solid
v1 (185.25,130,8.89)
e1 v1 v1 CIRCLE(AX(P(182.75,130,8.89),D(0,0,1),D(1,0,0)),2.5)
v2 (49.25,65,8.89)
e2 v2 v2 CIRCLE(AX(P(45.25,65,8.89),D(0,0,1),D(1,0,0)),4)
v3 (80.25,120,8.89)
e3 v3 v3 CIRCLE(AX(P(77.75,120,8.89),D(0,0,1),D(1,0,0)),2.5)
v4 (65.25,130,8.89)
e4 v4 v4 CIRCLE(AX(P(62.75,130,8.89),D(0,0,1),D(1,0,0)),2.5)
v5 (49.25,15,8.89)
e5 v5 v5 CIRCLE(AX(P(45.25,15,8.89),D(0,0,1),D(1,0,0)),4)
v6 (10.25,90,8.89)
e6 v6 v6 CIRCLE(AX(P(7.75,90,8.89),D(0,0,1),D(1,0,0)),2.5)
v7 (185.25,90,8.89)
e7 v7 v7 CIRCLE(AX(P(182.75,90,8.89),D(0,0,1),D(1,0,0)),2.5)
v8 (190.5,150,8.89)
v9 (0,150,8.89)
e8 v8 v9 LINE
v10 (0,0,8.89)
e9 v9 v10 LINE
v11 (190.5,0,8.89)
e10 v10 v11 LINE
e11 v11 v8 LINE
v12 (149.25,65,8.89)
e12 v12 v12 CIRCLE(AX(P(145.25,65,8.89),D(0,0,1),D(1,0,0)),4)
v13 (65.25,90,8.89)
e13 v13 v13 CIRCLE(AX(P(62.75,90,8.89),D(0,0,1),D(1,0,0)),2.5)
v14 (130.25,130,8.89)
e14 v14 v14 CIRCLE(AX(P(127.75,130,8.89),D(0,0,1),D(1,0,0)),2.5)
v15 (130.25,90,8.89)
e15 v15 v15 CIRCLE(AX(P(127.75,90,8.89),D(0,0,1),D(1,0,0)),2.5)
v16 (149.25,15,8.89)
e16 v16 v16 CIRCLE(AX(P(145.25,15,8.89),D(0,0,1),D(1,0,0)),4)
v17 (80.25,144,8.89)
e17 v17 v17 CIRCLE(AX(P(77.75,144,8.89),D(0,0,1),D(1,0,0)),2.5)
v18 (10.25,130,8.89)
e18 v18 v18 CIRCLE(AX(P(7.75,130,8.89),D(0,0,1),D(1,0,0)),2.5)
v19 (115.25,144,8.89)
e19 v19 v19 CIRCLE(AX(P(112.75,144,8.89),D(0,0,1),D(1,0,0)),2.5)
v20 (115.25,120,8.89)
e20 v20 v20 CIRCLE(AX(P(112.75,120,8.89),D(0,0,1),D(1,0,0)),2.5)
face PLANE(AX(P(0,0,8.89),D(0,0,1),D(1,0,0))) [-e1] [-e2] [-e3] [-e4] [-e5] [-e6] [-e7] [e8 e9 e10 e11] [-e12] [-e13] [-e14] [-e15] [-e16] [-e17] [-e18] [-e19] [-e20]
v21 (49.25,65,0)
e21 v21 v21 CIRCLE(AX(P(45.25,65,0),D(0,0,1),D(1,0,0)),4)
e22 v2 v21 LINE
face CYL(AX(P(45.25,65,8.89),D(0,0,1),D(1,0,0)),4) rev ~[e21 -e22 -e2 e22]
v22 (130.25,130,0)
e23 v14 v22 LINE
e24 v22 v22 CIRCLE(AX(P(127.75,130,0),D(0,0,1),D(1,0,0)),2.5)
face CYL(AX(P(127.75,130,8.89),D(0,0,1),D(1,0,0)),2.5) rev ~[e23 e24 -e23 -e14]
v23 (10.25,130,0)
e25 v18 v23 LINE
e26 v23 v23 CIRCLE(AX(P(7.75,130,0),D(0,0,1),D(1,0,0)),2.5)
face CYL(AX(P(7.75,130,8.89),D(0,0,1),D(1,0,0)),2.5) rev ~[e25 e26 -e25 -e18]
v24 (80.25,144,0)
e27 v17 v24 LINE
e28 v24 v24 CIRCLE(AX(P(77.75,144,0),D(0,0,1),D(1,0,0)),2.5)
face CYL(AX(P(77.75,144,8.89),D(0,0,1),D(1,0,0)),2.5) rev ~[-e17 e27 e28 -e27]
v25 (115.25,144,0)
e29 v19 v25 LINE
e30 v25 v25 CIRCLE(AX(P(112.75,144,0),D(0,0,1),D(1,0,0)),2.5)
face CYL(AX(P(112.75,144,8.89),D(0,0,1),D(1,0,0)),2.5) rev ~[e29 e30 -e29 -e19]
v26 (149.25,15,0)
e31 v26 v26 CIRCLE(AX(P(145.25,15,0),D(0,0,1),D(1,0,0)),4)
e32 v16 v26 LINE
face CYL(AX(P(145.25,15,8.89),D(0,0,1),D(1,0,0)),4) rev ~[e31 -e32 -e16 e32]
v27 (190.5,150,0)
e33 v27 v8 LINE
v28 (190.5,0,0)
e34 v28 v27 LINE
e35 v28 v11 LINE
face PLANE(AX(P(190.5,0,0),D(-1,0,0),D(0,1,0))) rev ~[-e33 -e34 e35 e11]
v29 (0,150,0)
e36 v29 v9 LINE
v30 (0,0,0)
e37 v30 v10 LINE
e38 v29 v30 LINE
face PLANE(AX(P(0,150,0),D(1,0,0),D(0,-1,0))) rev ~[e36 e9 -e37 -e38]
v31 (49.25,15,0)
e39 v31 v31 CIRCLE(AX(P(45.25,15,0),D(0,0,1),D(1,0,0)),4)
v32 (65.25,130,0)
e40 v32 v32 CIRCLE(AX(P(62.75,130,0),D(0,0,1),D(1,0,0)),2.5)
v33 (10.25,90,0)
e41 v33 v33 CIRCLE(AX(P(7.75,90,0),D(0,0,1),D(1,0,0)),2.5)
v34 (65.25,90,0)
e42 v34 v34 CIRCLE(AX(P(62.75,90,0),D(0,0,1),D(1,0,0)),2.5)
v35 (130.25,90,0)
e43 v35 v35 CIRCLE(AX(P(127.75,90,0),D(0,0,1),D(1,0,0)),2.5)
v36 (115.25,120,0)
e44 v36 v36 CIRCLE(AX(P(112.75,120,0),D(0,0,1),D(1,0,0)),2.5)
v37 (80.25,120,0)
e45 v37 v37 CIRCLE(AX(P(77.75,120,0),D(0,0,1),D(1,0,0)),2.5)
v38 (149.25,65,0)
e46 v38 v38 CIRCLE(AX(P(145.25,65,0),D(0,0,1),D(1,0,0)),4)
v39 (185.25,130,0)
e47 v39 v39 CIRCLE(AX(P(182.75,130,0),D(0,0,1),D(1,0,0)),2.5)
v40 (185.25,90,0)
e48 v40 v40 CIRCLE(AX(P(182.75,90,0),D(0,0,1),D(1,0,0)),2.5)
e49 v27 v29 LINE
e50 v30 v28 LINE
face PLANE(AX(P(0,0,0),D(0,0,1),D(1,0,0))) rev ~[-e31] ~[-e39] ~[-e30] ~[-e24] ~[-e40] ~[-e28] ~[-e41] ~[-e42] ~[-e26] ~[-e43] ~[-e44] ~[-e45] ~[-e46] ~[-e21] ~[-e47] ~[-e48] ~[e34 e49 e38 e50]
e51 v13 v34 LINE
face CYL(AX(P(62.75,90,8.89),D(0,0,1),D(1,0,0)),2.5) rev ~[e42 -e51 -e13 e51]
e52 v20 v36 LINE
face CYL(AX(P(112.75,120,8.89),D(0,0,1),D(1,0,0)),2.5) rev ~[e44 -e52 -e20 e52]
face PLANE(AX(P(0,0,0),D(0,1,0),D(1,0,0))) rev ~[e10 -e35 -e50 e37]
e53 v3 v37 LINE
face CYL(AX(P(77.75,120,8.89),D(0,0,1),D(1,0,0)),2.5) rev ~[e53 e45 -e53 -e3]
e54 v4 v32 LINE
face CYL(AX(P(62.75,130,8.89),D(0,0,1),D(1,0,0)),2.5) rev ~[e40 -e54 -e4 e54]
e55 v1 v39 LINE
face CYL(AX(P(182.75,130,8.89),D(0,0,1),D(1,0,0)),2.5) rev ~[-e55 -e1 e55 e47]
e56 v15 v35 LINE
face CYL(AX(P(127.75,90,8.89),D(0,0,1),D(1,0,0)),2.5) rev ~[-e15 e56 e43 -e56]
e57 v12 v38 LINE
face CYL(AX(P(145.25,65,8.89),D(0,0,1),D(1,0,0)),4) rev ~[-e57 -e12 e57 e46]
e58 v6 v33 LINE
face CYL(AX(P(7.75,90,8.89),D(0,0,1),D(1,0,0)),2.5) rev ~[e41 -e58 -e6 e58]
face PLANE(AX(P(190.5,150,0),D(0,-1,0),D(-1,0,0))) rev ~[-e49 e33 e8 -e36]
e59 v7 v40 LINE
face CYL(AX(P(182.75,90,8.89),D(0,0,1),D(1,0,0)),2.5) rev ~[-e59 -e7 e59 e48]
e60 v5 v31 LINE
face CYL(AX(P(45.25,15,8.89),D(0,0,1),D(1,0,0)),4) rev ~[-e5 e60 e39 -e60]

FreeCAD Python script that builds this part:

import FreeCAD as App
import Part
import Sketcher
Q = App.Units.Quantity


def add_polygon(sketch, points):
    """Adds a closed chain of lines whose ends are joined by coincident constraints."""
    first, n = sketch.GeometryCount, len(points)
    for a, b in zip(points, points[1:] + points[:1]):
        sketch.addGeometry(Part.LineSegment(App.Vector(*a, 0), App.Vector(*b, 0)), False)
    for i in range(n):
        sketch.addConstraint(Sketcher.Constraint("Coincident", first + i, 2, first + (i + 1) % n, 1))

doc = App.newDocument("Part")
body = doc.addObject("PartDesign::Body", "Body")

# Sketch on XY plane
sketch1 = body.newObject("Sketcher::SketchObject", "Sketch")
sketch1.AttachmentSupport = (doc.getObject("XY_Plane"), [""])
sketch1.MapMode = "FlatFace"
add_polygon(sketch1, [(0, 150), (0, 0), (190, 0), (190, 150)])  # lines 0-3
sketch1.addConstraint([
    Sketcher.Constraint("Vertical", 0),
    Sketcher.Constraint("Horizontal", 1),
    Sketcher.Constraint("Vertical", 2),
    Sketcher.Constraint("Horizontal", 3),
    Sketcher.Constraint("Coincident", 0, 2, -1, 1),
    Sketcher.Constraint("DistanceY", 0, 2, 0, 1, Q("150 mm")),
    Sketcher.Constraint("DistanceX", 1, 1, 1, 2, Q("190.5 mm")),
])
pad1 = body.newObject("PartDesign::Pad", "Pad")
pad1.Profile = sketch1
pad1.Length = 8.89

# Sketch on XY plane
sketch2 = body.newObject("Sketcher::SketchObject", "Sketch001")
sketch2.AttachmentSupport = (doc.getObject("XY_Plane"), [""])
sketch2.MapMode = "FlatFace"
sketch2.AttachmentOffset = App.Placement(App.Vector(0, 0, 8.89), App.Rotation())
sketch2.addGeometry([
    Part.Circle(App.Vector(45.2, 65, 0), App.Vector(0, 0, 1), 4),
    Part.Circle(App.Vector(145.2, 65, 0), App.Vector(0, 0, 1), 4),
    Part.Circle(App.Vector(45.2, 15, 0), App.Vector(0, 0, 1), 4),
    Part.Circle(App.Vector(145.2, 15, 0), App.Vector(0, 0, 1), 4),
], False)
sketch2.addConstraint([
    Sketcher.Constraint("Equal", 0, 1),
    Sketcher.Constraint("Equal", 1, 2),
    Sketcher.Constraint("Equal", 2, 3),
    Sketcher.Constraint("Horizontal", 0, 3, 1, 3),
    Sketcher.Constraint("Horizontal", 2, 3, 3, 3),
    Sketcher.Constraint("Vertical", 0, 3, 2, 3),
    Sketcher.Constraint("Vertical", 1, 3, 3, 3),
    Sketcher.Constraint("Diameter", 0, Q("8 mm")),
    Sketcher.Constraint("DistanceY", -1, 1, 2, 3, Q("15 mm")),
    Sketcher.Constraint("DistanceX", 0, 3, 1, 3, Q("100 mm")),
    Sketcher.Constraint("DistanceY", 2, 3, 0, 3, Q("50 mm")),
    Sketcher.Constraint("DistanceX", -1, 1, 0, 3, Q("45.25 mm")),
])
pocket1 = body.newObject("PartDesign::Pocket", "Pocket")
pocket1.Profile = sketch2
pocket1.Length = 8.89

# Sketch on XY plane
sketch3 = body.newObject("Sketcher::SketchObject", "Sketch002")
sketch3.AttachmentSupport = (doc.getObject("XY_Plane"), [""])
sketch3.MapMode = "FlatFace"
sketch3.AttachmentOffset = App.Placement(App.Vector(0, 0, 8.89), App.Rotation())
sketch3.addGeometry([
    Part.Circle(App.Vector(7.8, 130, 0), App.Vector(0, 0, 1), 2.5),  # 0
    Part.Circle(App.Vector(62.8, 130, 0), App.Vector(0, 0, 1), 2.5),  # 1
    Part.Circle(App.Vector(7.8, 90, 0), App.Vector(0, 0, 1), 2.5),  # 2
    Part.Circle(App.Vector(62.8, 90, 0), App.Vector(0, 0, 1), 2.5),  # 3
    Part.Circle(App.Vector(182.8, 130, 0), App.Vector(0, 0, 1), 2.5),  # 4
    Part.Circle(App.Vector(127.8, 130, 0), App.Vector(0, 0, 1), 2.5),  # 5
    Part.Circle(App.Vector(182.8, 90, 0), App.Vector(0, 0, 1), 2.5),  # 6
    Part.Circle(App.Vector(127.8, 90, 0), App.Vector(0, 0, 1), 2.5),  # 7
], False)
sketch3.addConstraint([
    Sketcher.Constraint("Equal", 0, 1),
    Sketcher.Constraint("Equal", 1, 2),
    Sketcher.Constraint("Equal", 2, 3),
    Sketcher.Constraint("Equal", 3, 4),
    Sketcher.Constraint("Equal", 4, 5),
    Sketcher.Constraint("Equal", 5, 6),
    Sketcher.Constraint("Equal", 6, 7),
    Sketcher.Constraint("Horizontal", 0, 3, 1, 3),
    Sketcher.Constraint("Horizontal", 2, 3, 3, 3),
    Sketcher.Constraint("Horizontal", 1, 3, 4, 3),
    Sketcher.Constraint("Horizontal", 4, 3, 5, 3),
    Sketcher.Constraint("Horizontal", 3, 3, 6, 3),
    Sketcher.Constraint("Horizontal", 6, 3, 7, 3),
    Sketcher.Constraint("Vertical", 0, 3, 2, 3),
    Sketcher.Constraint("Vertical", 1, 3, 3, 3),
    Sketcher.Constraint("Vertical", 4, 3, 6, 3),
    Sketcher.Constraint("Vertical", 5, 3, 7, 3),
    Sketcher.Constraint("Diameter", 0, Q("5 mm")),
    Sketcher.Constraint("DistanceX", 0, 3, 1, 3, Q("55 mm")),
    Sketcher.Constraint("DistanceY", 2, 3, 0, 3, Q("40 mm")),
    Sketcher.Constraint("DistanceX", 5, 3, 4, 3, Q("55 mm")),
    Sketcher.Constraint("DistanceY", -1, 1, 0, 3, Q("130 mm")),
    Sketcher.Constraint("DistanceX", 1, 3, 4, 3, Q("120 mm")),
    Sketcher.Constraint("DistanceX", -1, 1, 0, 3, Q("7.75 mm")),
])
pocket2 = body.newObject("PartDesign::Pocket", "Pocket001")
pocket2.Profile = sketch3
pocket2.Length = 8.89

# Sketch on XY plane
sketch4 = body.newObject("Sketcher::SketchObject", "Sketch003")
sketch4.AttachmentSupport = (doc.getObject("XY_Plane"), [""])
sketch4.MapMode = "FlatFace"
sketch4.AttachmentOffset = App.Placement(App.Vector(0, 0, 8.89), App.Rotation())
sketch4.addGeometry([
    Part.Circle(App.Vector(112.8, 120, 0), App.Vector(0, 0, 1), 2.5),
    Part.Circle(App.Vector(112.8, 144, 0), App.Vector(0, 0, 1), 2.5),
    Part.Circle(App.Vector(77.8, 144, 0), App.Vector(0, 0, 1), 2.5),
    Part.Circle(App.Vector(77.8, 120, 0), App.Vector(0, 0, 1), 2.5),
], False)
sketch4.addConstraint([
    Sketcher.Constraint("Equal", 0, 1),
    Sketcher.Constraint("Equal", 1, 2),
    Sketcher.Constraint("Equal", 2, 3),
    Sketcher.Constraint("Horizontal", 1, 3, 2, 3),
    Sketcher.Constraint("Horizontal", 0, 3, 3, 3),
    Sketcher.Constraint("Vertical", 0, 3, 1, 3),
    Sketcher.Constraint("Vertical", 2, 3, 3, 3),
    Sketcher.Constraint("Diameter", 0, Q("5 mm")),
    Sketcher.Constraint("DistanceY", 0, 3, 1, 3, Q("24 mm")),
    Sketcher.Constraint("DistanceX", 2, 3, 1, 3, Q("35 mm")),
    Sketcher.Constraint("DistanceY", -1, 1, 0, 3, Q("120 mm")),
    Sketcher.Constraint("DistanceX", -1, 1, 0, 3, Q("112.75 mm")),
])
pocket3 = body.newObject("PartDesign::Pocket", "Pocket002")
pocket3.Profile = sketch4
pocket3.Length = 8.89

doc.recompute()
